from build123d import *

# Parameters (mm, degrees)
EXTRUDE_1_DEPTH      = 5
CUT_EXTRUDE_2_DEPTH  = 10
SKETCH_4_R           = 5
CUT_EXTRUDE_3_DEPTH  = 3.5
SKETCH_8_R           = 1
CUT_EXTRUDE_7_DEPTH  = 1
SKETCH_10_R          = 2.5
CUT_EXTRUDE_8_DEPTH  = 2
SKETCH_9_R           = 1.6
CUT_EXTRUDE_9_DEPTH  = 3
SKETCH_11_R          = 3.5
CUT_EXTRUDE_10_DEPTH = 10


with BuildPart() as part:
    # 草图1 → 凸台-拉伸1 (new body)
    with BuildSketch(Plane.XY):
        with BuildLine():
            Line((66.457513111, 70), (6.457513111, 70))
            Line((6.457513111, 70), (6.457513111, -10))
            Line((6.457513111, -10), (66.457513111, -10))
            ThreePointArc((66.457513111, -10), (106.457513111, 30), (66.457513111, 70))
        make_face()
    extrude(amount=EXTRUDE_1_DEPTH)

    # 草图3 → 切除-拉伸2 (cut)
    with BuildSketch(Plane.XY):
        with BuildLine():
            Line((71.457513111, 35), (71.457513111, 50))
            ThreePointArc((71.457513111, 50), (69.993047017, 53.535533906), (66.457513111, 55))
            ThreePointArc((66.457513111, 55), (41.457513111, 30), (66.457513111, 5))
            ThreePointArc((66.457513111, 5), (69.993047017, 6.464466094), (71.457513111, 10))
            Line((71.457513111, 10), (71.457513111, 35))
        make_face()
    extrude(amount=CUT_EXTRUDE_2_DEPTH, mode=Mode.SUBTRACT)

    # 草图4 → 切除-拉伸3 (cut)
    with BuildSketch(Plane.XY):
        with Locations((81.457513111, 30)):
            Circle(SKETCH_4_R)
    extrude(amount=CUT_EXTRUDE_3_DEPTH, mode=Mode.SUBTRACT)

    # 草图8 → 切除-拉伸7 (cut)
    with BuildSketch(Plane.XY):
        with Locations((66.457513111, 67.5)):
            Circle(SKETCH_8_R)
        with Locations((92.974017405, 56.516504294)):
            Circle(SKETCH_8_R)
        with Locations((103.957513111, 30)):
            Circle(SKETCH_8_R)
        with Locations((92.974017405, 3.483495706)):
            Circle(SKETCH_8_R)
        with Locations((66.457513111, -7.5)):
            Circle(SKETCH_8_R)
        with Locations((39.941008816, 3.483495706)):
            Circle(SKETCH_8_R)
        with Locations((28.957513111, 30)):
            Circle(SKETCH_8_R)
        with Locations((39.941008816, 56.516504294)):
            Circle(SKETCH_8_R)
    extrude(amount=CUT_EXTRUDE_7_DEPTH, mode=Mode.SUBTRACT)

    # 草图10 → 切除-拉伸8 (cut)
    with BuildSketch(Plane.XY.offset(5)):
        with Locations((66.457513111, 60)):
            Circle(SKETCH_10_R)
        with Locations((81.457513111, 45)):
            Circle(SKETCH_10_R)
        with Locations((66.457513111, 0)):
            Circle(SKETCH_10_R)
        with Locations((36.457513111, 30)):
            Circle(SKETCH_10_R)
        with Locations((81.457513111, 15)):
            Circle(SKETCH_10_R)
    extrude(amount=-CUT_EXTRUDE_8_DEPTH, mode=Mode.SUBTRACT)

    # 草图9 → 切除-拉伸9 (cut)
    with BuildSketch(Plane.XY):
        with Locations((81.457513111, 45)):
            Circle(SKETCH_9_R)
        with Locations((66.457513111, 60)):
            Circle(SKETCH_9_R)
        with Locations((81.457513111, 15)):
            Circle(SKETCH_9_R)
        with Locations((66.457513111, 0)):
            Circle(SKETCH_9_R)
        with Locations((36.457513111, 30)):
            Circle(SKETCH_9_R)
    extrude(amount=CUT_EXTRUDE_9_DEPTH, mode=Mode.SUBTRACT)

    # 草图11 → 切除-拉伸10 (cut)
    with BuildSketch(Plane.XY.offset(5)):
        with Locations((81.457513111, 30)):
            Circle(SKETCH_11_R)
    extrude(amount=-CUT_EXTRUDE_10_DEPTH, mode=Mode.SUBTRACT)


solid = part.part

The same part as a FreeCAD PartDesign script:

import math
import FreeCAD as App
import Part
import Sketcher
from FreeCAD import Vector
Q = App.Units.Quantity

doc = App.newDocument("Part")
body = doc.addObject("PartDesign::Body", "Body")

sketch1 = body.newObject("Sketcher::SketchObject", "Sketch")
sketch1.AttachmentSupport = (doc.getObject("XY_Plane"), [""])
sketch1.MapMode = "FlatFace"
sketch1.addGeometry(Part.LineSegment(Vector(66.457513, 70, 0), Vector(6.457513, 70, 0)), False)
sketch1.addGeometry(Part.LineSegment(Vector(6.457513, 70, 0), Vector(6.457513, -10, 0)), False)
sketch1.addGeometry(Part.LineSegment(Vector(6.457513, -10, 0), Vector(66.457513, -10, 0)), False)
sketch1.addGeometry(Part.ArcOfCircle(Part.Circle(Vector(66.457513, 30, 0), Vector(0, 0, 1), 40), math.radians(-90), math.radians(90)), False)
sketch1.addConstraint(Sketcher.Constraint("Coincident", 0, 2, 1, 1))
sketch1.addConstraint(Sketcher.Constraint("Coincident", 1, 2, 2, 1))
sketch1.addConstraint(Sketcher.Constraint("Tangent", 2, 2, 3, 1))
sketch1.addConstraint(Sketcher.Constraint("Tangent", 3, 2, 0, 1))
sketch1.addConstraint(Sketcher.Constraint("Horizontal", 0))
sketch1.addConstraint(Sketcher.Constraint("Vertical", 1))
sketch1.addConstraint(Sketcher.Constraint("Horizontal", 2))
sketch1.addConstraint(Sketcher.Constraint("Radius", 3, Q("40 mm")))
sketch1.addConstraint(Sketcher.Constraint("DistanceX", 0, 2, 0, 1, Q("60 mm")))
sketch1.addConstraint(Sketcher.Constraint("DistanceY", -1, 1, 3, 3, Q("30 mm")))
sketch1.addConstraint(Sketcher.Constraint("DistanceX", -1, 1, 3, 3, Q("66.457513 mm")))
pad1 = body.newObject("PartDesign::Pad", "Pad")
pad1.Profile = sketch1
pad1.Length = 5

sketch2 = body.newObject("Sketcher::SketchObject", "Sketch001")
sketch2.AttachmentSupport = (doc.getObject("XY_Plane"), [""])
sketch2.MapMode = "FlatFace"
sketch2.addGeometry(Part.ArcOfCircle(Part.Circle(Vector(66.457513, 50, 0), Vector(0, 0, 1), 5), math.radians(0), math.radians(90)), False)
sketch2.addGeometry(Part.ArcOfCircle(Part.Circle(Vector(66.457513, 30, 0), Vector(0, 0, 1), 25), math.radians(90), math.radians(270)), False)
sketch2.addGeometry(Part.ArcOfCircle(Part.Circle(Vector(66.457513, 10, 0), Vector(0, 0, 1), 5), math.radians(-90), math.radians(0)), False)
sketch2.addGeometry(Part.LineSegment(Vector(71.457513, 10, 0), Vector(71.457513, 50, 0)), False)
sketch2.addConstraint(Sketcher.Constraint("Tangent", 0, 2, 1, 1))
sketch2.addConstraint(Sketcher.Constraint("Tangent", 1, 2, 2, 1))
sketch2.addConstraint(Sketcher.Constraint("Tangent", 2, 2, 3, 1))
sketch2.addConstraint(Sketcher.Constraint("Tangent", 3, 2, 0, 1))
sketch2.addConstraint(Sketcher.Constraint("Vertical", 3))
sketch2.addConstraint(Sketcher.Constraint("Equal", 0, 2))
sketch2.addConstraint(Sketcher.Constraint("Vertical", 0, 3, 1, 3))
sketch2.addConstraint(Sketcher.Constraint("Radius", 0, Q("5 mm")))
sketch2.addConstraint(Sketcher.Constraint("Radius", 1, Q("25 mm")))
sketch2.addConstraint(Sketcher.Constraint("DistanceY", -1, 1, 0, 3, Q("50 mm")))
sketch2.addConstraint(Sketcher.Constraint("DistanceX", -1, 1, 0, 3, Q("66.457513 mm")))
pocket1 = body.newObject("PartDesign::Pocket", "Pocket")
pocket1.Profile = sketch2
pocket1.Length = 10
pocket1.Reversed = True

sketch3 = body.newObject("Sketcher::SketchObject", "Sketch002")
sketch3.AttachmentSupport = (doc.getObject("XY_Plane"), [""])
sketch3.MapMode = "FlatFace"
sketch3.addGeometry(Part.Circle(Vector(81.457513, 30, 0), Vector(0, 0, 1), 5), False)
sketch3.addConstraint(Sketcher.Constraint("Diameter", 0, Q("10 mm")))
sketch3.addConstraint(Sketcher.Constraint("DistanceY", -1, 1, 0, 3, Q("30 mm")))
sketch3.addConstraint(Sketcher.Constraint("DistanceX", -1, 1, 0, 3, Q("81.457513 mm")))
pocket2 = body.newObject("PartDesign::Pocket", "Pocket001")
pocket2.Profile = sketch3
pocket2.Length = 3.5
pocket2.Reversed = True

sketch4 = body.newObject("Sketcher::SketchObject", "Sketch003")
sketch4.AttachmentSupport = (doc.getObject("XY_Plane"), [""])
sketch4.MapMode = "FlatFace"
sketch4.addGeometry(Part.Circle(Vector(66.457513, 67.5, 0), Vector(0, 0, 1), 1), False)
sketch4.addGeometry(Part.Circle(Vector(92.974017, 56.516504, 0), Vector(0, 0, 1), 1), False)
sketch4.addGeometry(Part.Circle(Vector(103.957513, 30, 0), Vector(0, 0, 1), 1), False)
sketch4.addGeometry(Part.Circle(Vector(92.974017, 3.483496, 0), Vector(0, 0, 1), 1), False)
sketch4.addGeometry(Part.Circle(Vector(66.457513, -7.5, 0), Vector(0, 0, 1), 1), False)
sketch4.addGeometry(Part.Circle(Vector(39.941009, 3.483496, 0), Vector(0, 0, 1), 1), False)
sketch4.addGeometry(Part.Circle(Vector(28.957513, 30, 0), Vector(0, 0, 1), 1), False)
sketch4.addGeometry(Part.Circle(Vector(39.941009, 56.516504, 0), Vector(0, 0, 1), 1), False)
sketch4.addConstraint(Sketcher.Constraint("Equal", 0, 1))
sketch4.addConstraint(Sketcher.Constraint("Equal", 1, 2))
sketch4.addConstraint(Sketcher.Constraint("Equal", 2, 3))
sketch4.addConstraint(Sketcher.Constraint("Equal", 3, 4))
sketch4.addConstraint(Sketcher.Constraint("Equal", 4, 5))
sketch4.addConstraint(Sketcher.Constraint("Equal", 5, 6))
sketch4.addConstraint(Sketcher.Constraint("Equal", 6, 7))
sketch4.addConstraint(Sketcher.Constraint("Horizontal", 3, 3, 5, 3))
sketch4.addConstraint(Sketcher.Constraint("Horizontal", 2, 3, 6, 3))
sketch4.addConstraint(Sketcher.Constraint("Horizontal", 1, 3, 7, 3))
sketch4.addConstraint(Sketcher.Constraint("Vertical", 1, 3, 3, 3))
sketch4.addConstraint(Sketcher.Constraint("Vertical", 0, 3, 4, 3))
sketch4.addConstraint(Sketcher.Constraint("Vertical", 5, 3, 7, 3))
sketch4.addConstraint(Sketcher.Constraint("Diameter", 0, Q("2 mm")))
sketch4.addConstraint(Sketcher.Constraint("DistanceY", -1, 1, 2, 3, Q("30 mm")))
sketch4.addConstraint(Sketcher.Constraint("DistanceY", 4, 3, 0, 3, Q("75 mm")))
sketch4.addConstraint(Sketcher.Constraint("DistanceY", -1, 1, 0, 3, Q("67.5 mm")))
sketch4.addConstraint(Sketcher.Constraint("DistanceX", 0, 3, 2, 3, Q("37.5 mm")))
sketch4.addConstraint(Sketcher.Constraint("DistanceX", 6, 3, 0, 3, Q("37.5 mm")))
sketch4.addConstraint(Sketcher.Constraint("DistanceX", -1, 1, 5, 3, Q("39.941009 mm")))
sketch4.addConstraint(Sketcher.Constraint("DistanceY", 3, 3, 1, 3, Q("53.033009 mm")))
sketch4.addConstraint(Sketcher.Constraint("DistanceX", 5, 3, 3, 3, Q("53.033009 mm")))
sketch4.addConstraint(Sketcher.Constraint("DistanceX", -1, 1, 0, 3, Q("66.457513 mm")))
sketch4.addConstraint(Sketcher.Constraint("DistanceY", -1, 1, 1, 3, Q("56.516504 mm")))
pocket3 = body.newObject("PartDesign::Pocket", "Pocket002")
pocket3.Profile = sketch4
pocket3.Length = 1
pocket3.Reversed = True

sketch5 = body.newObject("Sketcher::SketchObject", "Sketch004")
sketch5.AttachmentSupport = (doc.getObject("XY_Plane"), [""])
sketch5.MapMode = "FlatFace"
sketch5.AttachmentOffset = App.Placement(Vector(0, 0, 5), App.Rotation())
sketch5.addGeometry(Part.Circle(Vector(66.457513, 60, 0), Vector(0, 0, 1), 2.5), False)
sketch5.addGeometry(Part.Circle(Vector(81.457513, 45, 0), Vector(0, 0, 1), 2.5), False)
sketch5.addGeometry(Part.Circle(Vector(66.457513, 0, 0), Vector(0, 0, 1), 2.5), False)
sketch5.addGeometry(Part.Circle(Vector(36.457513, 30, 0), Vector(0, 0, 1), 2.5), False)
sketch5.addGeometry(Part.Circle(Vector(81.457513, 15, 0), Vector(0, 0, 1), 2.5), False)
sketch5.addConstraint(Sketcher.Constraint("Equal", 0, 1))
sketch5.addConstraint(Sketcher.Constraint("Equal", 1, 2))
sketch5.addConstraint(Sketcher.Constraint("Equal", 2, 3))
sketch5.addConstraint(Sketcher.Constraint("Equal", 3, 4))
sketch5.addConstraint(Sketcher.Constraint("PointOnObject", 2, 3, -1))
sketch5.addConstraint(Sketcher.Constraint("Vertical", 0, 3, 2, 3))
sketch5.addConstraint(Sketcher.Constraint("Vertical", 1, 3, 4, 3))
sketch5.addConstraint(Sketcher.Constraint("Diameter", 0, Q("5 mm")))
sketch5.addConstraint(Sketcher.Constraint("DistanceY", -1, 1, 0, 3, Q("60 mm")))
sketch5.addConstraint(Sketcher.Constraint("DistanceY", -1, 1, 1, 3, Q("45 mm")))
sketch5.addConstraint(Sketcher.Constraint("DistanceY", -1, 1, 3, 3, Q("30 mm")))
sketch5.addConstraint(Sketcher.Constraint("DistanceY", -1, 1, 4, 3, Q("15 mm")))
sketch5.addConstraint(Sketcher.Constraint("DistanceX", 0, 3, 1, 3, Q("15 mm")))
sketch5.addConstraint(Sketcher.Constraint("DistanceX", 3, 3, 0, 3, Q("30 mm")))
sketch5.addConstraint(Sketcher.Constraint("DistanceX", -1, 1, 0, 3, Q("66.457513 mm")))
pocket4 = body.newObject("PartDesign::Pocket", "Pocket003")
pocket4.Profile = sketch5
pocket4.Length = 2

sketch6 = body.newObject("Sketcher::SketchObject", "Sketch005")
sketch6.AttachmentSupport = (doc.getObject("XY_Plane"), [""])
sketch6.MapMode = "FlatFace"
sketch6.addGeometry(Part.Circle(Vector(81.457513, 45, 0), Vector(0, 0, 1), 1.6), False)
sketch6.addGeometry(Part.Circle(Vector(66.457513, 60, 0), Vector(0, 0, 1), 1.6), False)
sketch6.addGeometry(Part.Circle(Vector(81.457513, 15, 0), Vector(0, 0, 1), 1.6), False)
sketch6.addGeometry(Part.Circle(Vector(66.457513, 0, 0), Vector(0, 0, 1), 1.6), False)
sketch6.addGeometry(Part.Circle(Vector(36.457513, 30, 0), Vector(0, 0, 1), 1.6), False)
sketch6.addConstraint(Sketcher.Constraint("Equal", 0, 1))
sketch6.addConstraint(Sketcher.Constraint("Equal", 1, 2))
sketch6.addConstraint(Sketcher.Constraint("Equal", 2, 3))
sketch6.addConstraint(Sketcher.Constraint("Equal", 3, 4))
sketch6.addConstraint(Sketcher.Constraint("PointOnObject", 3, 3, -1))
sketch6.addConstraint(Sketcher.Constraint("Vertical", 0, 3, 2, 3))
sketch6.addConstraint(Sketcher.Constraint("Vertical", 1, 3, 3, 3))
sketch6.addConstraint(Sketcher.Constraint("Diameter", 0, Q("3.2 mm")))
sketch6.addConstraint(Sketcher.Constraint("DistanceY", -1, 1, 0, 3, Q("45 mm")))
sketch6.addConstraint(Sketcher.Constraint("DistanceY", -1, 1, 1, 3, Q("60 mm")))
sketch6.addConstraint(Sketcher.Constraint("DistanceY", -1, 1, 2, 3, Q("15 mm")))
sketch6.addConstraint(Sketcher.Constraint("DistanceY", -1, 1, 4, 3, Q("30 mm")))
sketch6.addConstraint(Sketcher.Constraint("DistanceX", 1, 3, 0, 3, Q("15 mm")))
sketch6.addConstraint(Sketcher.Constraint("DistanceX", 4, 3, 1, 3, Q("30 mm")))
sketch6.addConstraint(Sketcher.Constraint("DistanceX", -1, 1, 0, 3, Q("81.457513 mm")))
pocket5 = body.newObject("PartDesign::Pocket", "Pocket004")
pocket5.Profile = sketch6
pocket5.Length = 3
pocket5.Reversed = True

sketch7 = body.newObject("Sketcher::SketchObject", "Sketch006")
sketch7.AttachmentSupport = (doc.getObject("XY_Plane"), [""])
sketch7.MapMode = "FlatFace"
sketch7.AttachmentOffset = App.Placement(Vector(0, 0, 5), App.Rotation())
sketch7.addGeometry(Part.Circle(Vector(81.457513, 30, 0), Vector(0, 0, 1), 3.5), False)
sketch7.addConstraint(Sketcher.Constraint("Diameter", 0, Q("7 mm")))
sketch7.addConstraint(Sketcher.Constraint("DistanceY", -1, 1, 0, 3, Q("30 mm")))
sketch7.addConstraint(Sketcher.Constraint("DistanceX", -1, 1, 0, 3, Q("81.457513 mm")))
pocket6 = body.newObject("PartDesign::Pocket", "Pocket005")
pocket6.Profile = sketch7
pocket6.Length = 10

doc.recompute()
